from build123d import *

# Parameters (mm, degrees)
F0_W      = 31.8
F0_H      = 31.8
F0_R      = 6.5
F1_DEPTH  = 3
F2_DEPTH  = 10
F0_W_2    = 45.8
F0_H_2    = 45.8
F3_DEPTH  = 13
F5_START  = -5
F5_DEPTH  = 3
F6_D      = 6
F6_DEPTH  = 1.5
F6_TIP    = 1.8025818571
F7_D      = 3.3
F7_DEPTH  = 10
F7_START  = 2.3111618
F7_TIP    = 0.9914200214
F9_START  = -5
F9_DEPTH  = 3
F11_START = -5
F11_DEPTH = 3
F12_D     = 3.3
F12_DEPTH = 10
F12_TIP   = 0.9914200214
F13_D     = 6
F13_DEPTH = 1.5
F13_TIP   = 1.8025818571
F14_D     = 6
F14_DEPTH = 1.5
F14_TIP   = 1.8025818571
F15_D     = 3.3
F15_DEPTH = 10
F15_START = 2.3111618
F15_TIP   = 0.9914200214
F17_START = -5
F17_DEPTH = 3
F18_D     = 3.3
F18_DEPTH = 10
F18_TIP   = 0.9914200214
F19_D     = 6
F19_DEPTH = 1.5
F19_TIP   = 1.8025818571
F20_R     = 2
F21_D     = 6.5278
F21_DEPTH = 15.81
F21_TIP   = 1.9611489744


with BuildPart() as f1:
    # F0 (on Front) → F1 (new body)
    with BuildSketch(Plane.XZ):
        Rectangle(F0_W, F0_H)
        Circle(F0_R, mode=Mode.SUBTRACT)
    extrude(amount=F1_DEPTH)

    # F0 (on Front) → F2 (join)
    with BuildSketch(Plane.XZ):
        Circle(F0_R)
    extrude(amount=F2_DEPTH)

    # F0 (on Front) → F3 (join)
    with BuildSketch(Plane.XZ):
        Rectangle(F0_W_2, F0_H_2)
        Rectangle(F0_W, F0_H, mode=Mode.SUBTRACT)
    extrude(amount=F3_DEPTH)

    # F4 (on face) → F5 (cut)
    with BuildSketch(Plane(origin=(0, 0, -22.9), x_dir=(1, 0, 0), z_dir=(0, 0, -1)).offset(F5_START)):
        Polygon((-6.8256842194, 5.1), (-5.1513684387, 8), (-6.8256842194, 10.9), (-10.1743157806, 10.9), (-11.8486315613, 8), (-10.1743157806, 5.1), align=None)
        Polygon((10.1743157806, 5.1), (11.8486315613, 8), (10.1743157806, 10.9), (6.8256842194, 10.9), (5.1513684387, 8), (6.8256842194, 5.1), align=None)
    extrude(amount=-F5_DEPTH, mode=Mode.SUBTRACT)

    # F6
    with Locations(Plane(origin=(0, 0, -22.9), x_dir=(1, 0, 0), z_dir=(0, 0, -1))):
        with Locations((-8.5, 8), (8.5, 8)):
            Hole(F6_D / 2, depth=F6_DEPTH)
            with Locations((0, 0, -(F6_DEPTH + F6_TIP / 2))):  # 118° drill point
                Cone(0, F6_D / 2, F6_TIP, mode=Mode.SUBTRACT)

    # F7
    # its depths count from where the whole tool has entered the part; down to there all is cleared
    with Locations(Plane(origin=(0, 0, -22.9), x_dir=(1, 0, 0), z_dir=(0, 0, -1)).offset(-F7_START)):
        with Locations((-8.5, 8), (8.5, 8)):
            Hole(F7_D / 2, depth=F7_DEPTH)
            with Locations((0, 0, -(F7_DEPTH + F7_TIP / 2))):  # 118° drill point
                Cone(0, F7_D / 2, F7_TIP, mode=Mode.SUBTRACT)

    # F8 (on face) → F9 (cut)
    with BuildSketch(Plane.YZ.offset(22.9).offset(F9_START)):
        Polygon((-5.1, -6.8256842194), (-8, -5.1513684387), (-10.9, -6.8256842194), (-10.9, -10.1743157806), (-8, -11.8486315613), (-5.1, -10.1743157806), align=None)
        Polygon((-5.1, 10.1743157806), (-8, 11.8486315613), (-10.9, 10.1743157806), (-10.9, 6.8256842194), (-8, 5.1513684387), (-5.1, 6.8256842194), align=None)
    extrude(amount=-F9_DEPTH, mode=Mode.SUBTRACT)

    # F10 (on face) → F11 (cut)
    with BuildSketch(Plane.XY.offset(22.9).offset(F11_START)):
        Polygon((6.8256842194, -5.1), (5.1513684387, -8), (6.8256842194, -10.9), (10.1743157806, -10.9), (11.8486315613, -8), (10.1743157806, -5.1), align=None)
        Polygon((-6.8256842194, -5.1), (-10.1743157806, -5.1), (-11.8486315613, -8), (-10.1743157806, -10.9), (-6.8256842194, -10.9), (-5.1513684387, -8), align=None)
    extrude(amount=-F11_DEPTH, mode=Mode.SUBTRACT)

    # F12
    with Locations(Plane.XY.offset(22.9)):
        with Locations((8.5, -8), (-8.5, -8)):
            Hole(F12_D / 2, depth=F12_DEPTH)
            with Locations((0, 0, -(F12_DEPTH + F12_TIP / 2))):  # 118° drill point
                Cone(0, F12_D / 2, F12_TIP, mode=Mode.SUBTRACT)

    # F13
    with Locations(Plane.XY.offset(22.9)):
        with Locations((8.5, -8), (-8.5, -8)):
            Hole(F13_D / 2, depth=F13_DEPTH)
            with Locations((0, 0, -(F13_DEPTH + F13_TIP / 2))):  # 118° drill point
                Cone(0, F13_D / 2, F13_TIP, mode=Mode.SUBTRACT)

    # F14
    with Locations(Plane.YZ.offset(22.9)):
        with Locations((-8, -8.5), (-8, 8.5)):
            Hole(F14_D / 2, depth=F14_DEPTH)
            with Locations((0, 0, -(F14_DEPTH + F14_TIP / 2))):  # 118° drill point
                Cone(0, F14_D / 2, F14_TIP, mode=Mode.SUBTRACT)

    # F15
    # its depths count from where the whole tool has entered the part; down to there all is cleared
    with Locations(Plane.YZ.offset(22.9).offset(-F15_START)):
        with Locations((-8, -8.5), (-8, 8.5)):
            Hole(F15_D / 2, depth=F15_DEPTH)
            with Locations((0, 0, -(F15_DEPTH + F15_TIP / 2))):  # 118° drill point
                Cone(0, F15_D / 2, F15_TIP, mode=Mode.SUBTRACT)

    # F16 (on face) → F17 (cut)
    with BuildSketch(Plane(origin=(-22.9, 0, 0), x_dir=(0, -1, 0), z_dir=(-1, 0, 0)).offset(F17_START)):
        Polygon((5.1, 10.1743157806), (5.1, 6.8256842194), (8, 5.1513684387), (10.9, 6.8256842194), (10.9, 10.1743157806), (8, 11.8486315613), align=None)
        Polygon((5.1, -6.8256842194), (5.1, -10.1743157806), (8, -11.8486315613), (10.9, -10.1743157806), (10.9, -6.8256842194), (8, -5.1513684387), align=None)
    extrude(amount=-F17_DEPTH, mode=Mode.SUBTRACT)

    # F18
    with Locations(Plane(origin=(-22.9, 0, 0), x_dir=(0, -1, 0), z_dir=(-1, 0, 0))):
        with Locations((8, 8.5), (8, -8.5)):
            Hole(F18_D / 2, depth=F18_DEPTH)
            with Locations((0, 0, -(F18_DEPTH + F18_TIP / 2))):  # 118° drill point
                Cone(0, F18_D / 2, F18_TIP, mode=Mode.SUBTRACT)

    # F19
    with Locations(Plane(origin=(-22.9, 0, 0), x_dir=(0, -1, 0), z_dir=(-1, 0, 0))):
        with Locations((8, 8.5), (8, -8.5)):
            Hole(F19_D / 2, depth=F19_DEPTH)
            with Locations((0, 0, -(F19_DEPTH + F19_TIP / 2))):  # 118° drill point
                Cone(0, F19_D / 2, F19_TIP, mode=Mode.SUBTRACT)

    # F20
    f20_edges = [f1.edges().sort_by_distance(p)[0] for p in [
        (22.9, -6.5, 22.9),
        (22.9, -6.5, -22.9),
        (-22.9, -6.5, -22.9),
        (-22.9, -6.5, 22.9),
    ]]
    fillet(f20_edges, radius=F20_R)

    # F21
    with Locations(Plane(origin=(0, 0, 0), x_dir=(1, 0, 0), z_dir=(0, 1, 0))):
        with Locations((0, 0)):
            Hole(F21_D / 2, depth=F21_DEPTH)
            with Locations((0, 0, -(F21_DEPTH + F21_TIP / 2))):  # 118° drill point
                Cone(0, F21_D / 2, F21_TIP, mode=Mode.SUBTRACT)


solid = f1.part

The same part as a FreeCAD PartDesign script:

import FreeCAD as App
import Part
import Sketcher

V = App.Vector
Q = App.Units.Quantity


def edges_at(feature, points):
    """Names of the edges that pass closest to the given points."""
    edges = feature.Shape.Edges
    near = lambda p: min(range(len(edges)), key=lambda i: edges[i].distToShape(Part.Vertex(*p))[0])
    return sorted({f"Edge{near(p) + 1}" for p in points})

doc = App.newDocument("Part")
params = doc.addObject("Spreadsheet::Sheet", "Params")
for row, (alias, value) in enumerate([
    ("sketch1_diameter", "13 mm"),
    ("sketch1_width", "31.8 mm"),
    ("pad1_length", "3 mm"),
    ("sketch2_diameter", "13 mm"),
    ("pad2_length", "10 mm"),
    ("sketch3_width", "45.8 mm"),
    ("sketch3_width2", "31.8 mm"),
    ("pad3_length", "13 mm"),
    ("pocket1_length", "3 mm"),
    ("sketch5_diameter", "6 mm"),
    ("hole_diameter", "6 mm"),
    ("hole_depth", "1.5 mm"),
    ("sketch6_diameter", "3.3 mm"),
    ("hole2_diameter", "3.3 mm"),
    ("hole2_depth", "10 mm"),
    ("pocket2_length", "3 mm"),
    ("pocket3_length", "3 mm"),
    ("sketch9_diameter", "3.3 mm"),
    ("hole3_diameter", "3.3 mm"),
    ("hole3_depth", "10 mm"),
    ("sketch10_diameter", "6 mm"),
    ("hole4_diameter", "6 mm"),
    ("hole4_depth", "1.5 mm"),
    ("sketch11_diameter", "6 mm"),
    ("hole5_diameter", "6 mm"),
    ("hole5_depth", "1.5 mm"),
    ("sketch12_diameter", "3.3 mm"),
    ("hole6_diameter", "3.3 mm"),
    ("hole6_depth", "10 mm"),
    ("pocket4_length", "3 mm"),
    ("sketch14_diameter", "3.3 mm"),
    ("hole7_diameter", "3.3 mm"),
    ("hole7_depth", "10 mm"),
    ("sketch15_diameter", "6 mm"),
    ("hole8_diameter", "6 mm"),
    ("hole8_depth", "1.5 mm"),
    ("fillet_radius", "2 mm"),
    ("hole9_diameter", "6.5278 mm"),
    ("hole9_depth", "15.81 mm"),
], start=1):
    params.set(f"A{row}", alias)
    params.set(f"B{row}", "=" + value)
    params.setAlias(f"B{row}", alias)

body = doc.addObject("PartDesign::Body", "Body")

sketch1 = body.newObject("Sketcher::SketchObject", "Sketch")
sketch1.AttachmentSupport = (doc.getObject("XZ_Plane"), [""])
sketch1.MapMode = "FlatFace"
sketch1.addGeometry([
    Part.LineSegment(V(-15.9, 15.9, 0), V(-15.9, -15.9, 0)),
    Part.LineSegment(V(-15.9, -15.9, 0), V(15.9, -15.9, 0)),
    Part.LineSegment(V(15.9, -15.9, 0), V(15.9, 15.9, 0)),
    Part.LineSegment(V(15.9, 15.9, 0), V(-15.9, 15.9, 0)),
    Part.Circle(V(0, 0, 0), V(0, 0, 1), 6.5),
], False)
sketch1.addConstraint([
    Sketcher.Constraint("Coincident", 0, 2, 1, 1),
    Sketcher.Constraint("Coincident", 1, 2, 2, 1),
    Sketcher.Constraint("Coincident", 2, 2, 3, 1),
    Sketcher.Constraint("Coincident", 3, 2, 0, 1),
    Sketcher.Constraint("Vertical", 0),
    Sketcher.Constraint("Horizontal", 1),
    Sketcher.Constraint("Vertical", 2),
    Sketcher.Constraint("Horizontal", 3),
    Sketcher.Constraint("Coincident", 4, 3, -1, 1),
    Sketcher.Constraint("Symmetric", 0, 2, 2, 2, -1, 1),
    Sketcher.Constraint("Equal", 3, 0),
    Sketcher.Constraint("Diameter", 4, 13.0),
    Sketcher.Constraint("DistanceX", 1, 1, 1, 2, 31.8),
])
sketch1.setExpression("Constraints[11]", "Params.sketch1_diameter")
sketch1.setExpression("Constraints[12]", "Params.sketch1_width")
pad1 = body.newObject("PartDesign::Pad", "Pad")
pad1.Profile = sketch1
pad1.setExpression("Length", "Params.pad1_length")

sketch2 = body.newObject("Sketcher::SketchObject", "Sketch001")
sketch2.AttachmentSupport = (doc.getObject("XZ_Plane"), [""])
sketch2.MapMode = "FlatFace"
sketch2.addGeometry(Part.Circle(V(0, 0, 0), V(0, 0, 1), 6.5), False)
sketch2.addConstraint([
    Sketcher.Constraint("Coincident", 0, 3, -1, 1),
    Sketcher.Constraint("Diameter", 0, 13.0),
])
sketch2.setExpression("Constraints[1]", "Params.sketch2_diameter")
pad2 = body.newObject("PartDesign::Pad", "Pad001")
pad2.Profile = sketch2
pad2.setExpression("Length", "Params.pad2_length")

sketch3 = body.newObject("Sketcher::SketchObject", "Sketch002")
sketch3.AttachmentSupport = (doc.getObject("XZ_Plane"), [""])
sketch3.MapMode = "FlatFace"
sketch3.addGeometry([
    Part.LineSegment(V(-22.9, 22.9, 0), V(-22.9, -22.9, 0)),
    Part.LineSegment(V(-22.9, -22.9, 0), V(22.9, -22.9, 0)),
    Part.LineSegment(V(22.9, -22.9, 0), V(22.9, 22.9, 0)),
    Part.LineSegment(V(22.9, 22.9, 0), V(-22.9, 22.9, 0)),
    Part.LineSegment(V(15.9, -15.9, 0), V(-15.9, -15.9, 0)),
    Part.LineSegment(V(-15.9, -15.9, 0), V(-15.9, 15.9, 0)),
    Part.LineSegment(V(-15.9, 15.9, 0), V(15.9, 15.9, 0)),
    Part.LineSegment(V(15.9, 15.9, 0), V(15.9, -15.9, 0)),
], False)
sketch3.addConstraint([
    Sketcher.Constraint("Coincident", 0, 2, 1, 1),
    Sketcher.Constraint("Coincident", 1, 2, 2, 1),
    Sketcher.Constraint("Coincident", 2, 2, 3, 1),
    Sketcher.Constraint("Coincident", 3, 2, 0, 1),
    Sketcher.Constraint("Coincident", 4, 2, 5, 1),
    Sketcher.Constraint("Coincident", 5, 2, 6, 1),
    Sketcher.Constraint("Coincident", 6, 2, 7, 1),
    Sketcher.Constraint("Coincident", 7, 2, 4, 1),
    Sketcher.Constraint("Vertical", 0),
    Sketcher.Constraint("Horizontal", 1),
    Sketcher.Constraint("Vertical", 2),
    Sketcher.Constraint("Horizontal", 3),
    Sketcher.Constraint("Horizontal", 4),
    Sketcher.Constraint("Vertical", 5),
    Sketcher.Constraint("Horizontal", 6),
    Sketcher.Constraint("Vertical", 7),
    Sketcher.Constraint("Symmetric", 0, 2, 2, 2, -1, 1),
    Sketcher.Constraint("Symmetric", 4, 2, 6, 2, -1, 1),
    Sketcher.Constraint("Equal", 3, 0),
    Sketcher.Constraint("Equal", 6, 5),
    Sketcher.Constraint("DistanceX", 1, 1, 1, 2, 45.8),
    Sketcher.Constraint("DistanceX", 4, 2, 4, 1, 31.8),
])
sketch3.setExpression("Constraints[20]", "Params.sketch3_width")
sketch3.setExpression("Constraints[21]", "Params.sketch3_width2")
pad3 = body.newObject("PartDesign::Pad", "Pad002")
pad3.Profile = sketch3
pad3.setExpression("Length", "Params.pad3_length")

sketch4 = body.newObject("Sketcher::SketchObject", "Sketch003")
sketch4.AttachmentSupport = (doc.getObject("XY_Plane"), [""])
sketch4.MapMode = "FlatFace"
sketch4.AttachmentOffset = App.Placement(V(0, 0, -17.9), App.Rotation())
sketch4.addGeometry([
    Part.LineSegment(V(-6.825684, -5.1, 0), V(-5.151368, -8, 0)),
    Part.LineSegment(V(-5.151368, -8, 0), V(-6.825684, -10.9, 0)),
    Part.LineSegment(V(-6.825684, -10.9, 0), V(-10.174316, -10.9, 0)),
    Part.LineSegment(V(-10.174316, -10.9, 0), V(-11.848632, -8, 0)),
    Part.LineSegment(V(-11.848632, -8, 0), V(-10.174316, -5.1, 0)),
    Part.LineSegment(V(-10.174316, -5.1, 0), V(-6.825684, -5.1, 0)),
    Part.LineSegment(V(10.174316, -5.1, 0), V(11.848632, -8, 0)),
    Part.LineSegment(V(11.848632, -8, 0), V(10.174316, -10.9, 0)),
    Part.LineSegment(V(10.174316, -10.9, 0), V(6.825684, -10.9, 0)),
    Part.LineSegment(V(6.825684, -10.9, 0), V(5.151368, -8, 0)),
    Part.LineSegment(V(5.151368, -8, 0), V(6.825684, -5.1, 0)),
    Part.LineSegment(V(6.825684, -5.1, 0), V(10.174316, -5.1, 0)),
], False)
sketch4.addConstraint([
    Sketcher.Constraint("Coincident", 0, 2, 1, 1),
    Sketcher.Constraint("Coincident", 1, 2, 2, 1),
    Sketcher.Constraint("Coincident", 2, 2, 3, 1),
    Sketcher.Constraint("Coincident", 3, 2, 4, 1),
    Sketcher.Constraint("Coincident", 4, 2, 5, 1),
    Sketcher.Constraint("Coincident", 5, 2, 0, 1),
    Sketcher.Constraint("Coincident", 6, 2, 7, 1),
    Sketcher.Constraint("Coincident", 7, 2, 8, 1),
    Sketcher.Constraint("Coincident", 8, 2, 9, 1),
    Sketcher.Constraint("Coincident", 9, 2, 10, 1),
    Sketcher.Constraint("Coincident", 10, 2, 11, 1),
    Sketcher.Constraint("Coincident", 11, 2, 6, 1),
    Sketcher.Constraint("Horizontal", 2),
    Sketcher.Constraint("Horizontal", 5),
    Sketcher.Constraint("Horizontal", 8),
    Sketcher.Constraint("Horizontal", 11),
    Sketcher.Constraint("Symmetric", 3, 2, 6, 2, -2),
    Sketcher.Constraint("Symmetric", 2, 2, 7, 2, -2),
    Sketcher.Constraint("Symmetric", 0, 2, 9, 2, -2),
    Sketcher.Constraint("Symmetric", 5, 2, 10, 2, -2),
    Sketcher.Constraint("Parallel", 0, 3),
    Sketcher.Constraint("Parallel", 1, 4),
    Sketcher.Constraint("Parallel", 3, 6),
    Sketcher.Constraint("Parallel", 4, 7),
    Sketcher.Constraint("Parallel", 6, 9),
    Sketcher.Constraint("Horizontal", 0, 2, 3, 2),
    Sketcher.Constraint("Vertical", 2, 2, 4, 2),
    Sketcher.Constraint("Angle", 0, Q("-60 deg")),
    Sketcher.Constraint("DistanceY", 0, 2, -1, 1, 8.0),
    Sketcher.Constraint("DistanceX", 0, 2, 6, 2, 17.0),
    Sketcher.Constraint("DistanceY", 1, 2, -1, 1, 10.9),
    Sketcher.Constraint("DistanceX", 2, 2, 2, 1, 3.348632),
])
pocket1 = body.newObject("PartDesign::Pocket", "Pocket")
pocket1.Profile = sketch4
pocket1.setExpression("Length", "Params.pocket1_length")
pocket1.Reversed = True

sketch5 = body.newObject("Sketcher::SketchObject", "Sketch004")
sketch5.AttachmentSupport = (doc.getObject("XY_Plane"), [""])
sketch5.MapMode = "FlatFace"
sketch5.AttachmentOffset = App.Placement(V(0, 0, -22.9), App.Rotation())
sketch5.addGeometry([
    Part.Circle(V(-8.5, -8, 0), V(0, 0, 1), 3),
    Part.Circle(V(8.5, -8, 0), V(0, 0, 1), 3),
], False)
sketch5.addConstraint([
    Sketcher.Constraint("Equal", 0, 1),
    Sketcher.Constraint("Symmetric", 0, 3, 1, 3, -2),
    Sketcher.Constraint("Diameter", 0, 6.0),
    Sketcher.Constraint("DistanceY", 0, 3, -1, 1, 8.0),
    Sketcher.Constraint("DistanceX", 0, 3, 1, 3, 17.0),
])
sketch5.setExpression("Constraints[2]", "Params.sketch5_diameter")
doc.recompute()
hole = body.newObject("PartDesign::Hole", "Hole")
hole.Profile = sketch5
hole.ThreadType = "None"
hole.setExpression("Diameter", "Params.hole_diameter")
hole.DepthType = "Dimension"
hole.setExpression("Depth", "Params.hole_depth")
hole.DrillPoint = "Angled"
hole.DrillPointAngle = 118
hole.Reversed = True

sketch6 = body.newObject("Sketcher::SketchObject", "Sketch005")
sketch6.AttachmentSupport = (doc.getObject("XY_Plane"), [""])
sketch6.MapMode = "FlatFace"
sketch6.AttachmentOffset = App.Placement(V(0, 0, -20.588838), App.Rotation())
sketch6.addGeometry([
    Part.Circle(V(-8.5, -8, 0), V(0, 0, 1), 1.65),
    Part.Circle(V(8.5, -8, 0), V(0, 0, 1), 1.65),
], False)
sketch6.addConstraint([
    Sketcher.Constraint("Equal", 0, 1),
    Sketcher.Constraint("Symmetric", 0, 3, 1, 3, -2),
    Sketcher.Constraint("Diameter", 0, 3.3),
    Sketcher.Constraint("DistanceY", 0, 3, -1, 1, 8.0),
    Sketcher.Constraint("DistanceX", 0, 3, 1, 3, 17.0),
])
sketch6.setExpression("Constraints[2]", "Params.sketch6_diameter")
doc.recompute()
hole2 = body.newObject("PartDesign::Hole", "Hole001")
hole2.Profile = sketch6
hole2.ThreadType = "None"
hole2.setExpression("Diameter", "Params.hole2_diameter")
hole2.DepthType = "Dimension"
hole2.setExpression("Depth", "Params.hole2_depth")
hole2.DrillPoint = "Angled"
hole2.DrillPointAngle = 118
hole2.Reversed = True

sketch7 = body.newObject("Sketcher::SketchObject", "Sketch006")
sketch7.AttachmentSupport = (doc.getObject("YZ_Plane"), [""])
sketch7.MapMode = "FlatFace"
sketch7.AttachmentOffset = App.Placement(V(0, 0, 17.9), App.Rotation())
sketch7.addGeometry([
    Part.LineSegment(V(-5.1, -6.825684, 0), V(-8, -5.151368, 0)),
    Part.LineSegment(V(-8, -5.151368, 0), V(-10.9, -6.825684, 0)),
    Part.LineSegment(V(-10.9, -6.825684, 0), V(-10.9, -10.174316, 0)),
    Part.LineSegment(V(-10.9, -10.174316, 0), V(-8, -11.848632, 0)),
    Part.LineSegment(V(-8, -11.848632, 0), V(-5.1, -10.174316, 0)),
    Part.LineSegment(V(-5.1, -10.174316, 0), V(-5.1, -6.825684, 0)),
    Part.LineSegment(V(-5.1, 10.174316, 0), V(-8, 11.848632, 0)),
    Part.LineSegment(V(-8, 11.848632, 0), V(-10.9, 10.174316, 0)),
    Part.LineSegment(V(-10.9, 10.174316, 0), V(-10.9, 6.825684, 0)),
    Part.LineSegment(V(-10.9, 6.825684, 0), V(-8, 5.151368, 0)),
    Part.LineSegment(V(-8, 5.151368, 0), V(-5.1, 6.825684, 0)),
    Part.LineSegment(V(-5.1, 6.825684, 0), V(-5.1, 10.174316, 0)),
], False)
sketch7.addConstraint([
    Sketcher.Constraint("Coincident", 0, 2, 1, 1),
    Sketcher.Constraint("Coincident", 1, 2, 2, 1),
    Sketcher.Constraint("Coincident", 2, 2, 3, 1),
    Sketcher.Constraint("Coincident", 3, 2, 4, 1),
    Sketcher.Constraint("Coincident", 4, 2, 5, 1),
    Sketcher.Constraint("Coincident", 5, 2, 0, 1),
    Sketcher.Constraint("Coincident", 6, 2, 7, 1),
    Sketcher.Constraint("Coincident", 7, 2, 8, 1),
    Sketcher.Constraint("Coincident", 8, 2, 9, 1),
    Sketcher.Constraint("Coincident", 9, 2, 10, 1),
    Sketcher.Constraint("Coincident", 10, 2, 11, 1),
    Sketcher.Constraint("Coincident", 11, 2, 6, 1),
    Sketcher.Constraint("Vertical", 2),
    Sketcher.Constraint("Vertical", 5),
    Sketcher.Constraint("Vertical", 8),
    Sketcher.Constraint("Vertical", 11),
    Sketcher.Constraint("Symmetric", 3, 2, 6, 2, -1),
    Sketcher.Constraint("Symmetric", 2, 2, 7, 2, -1),
    Sketcher.Constraint("Symmetric", 0, 2, 9, 2, -1),
    Sketcher.Constraint("Symmetric", 5, 2, 10, 2, -1),
    Sketcher.Constraint("Parallel", 0, 3),
    Sketcher.Constraint("Parallel", 1, 4),
    Sketcher.Constraint("Parallel", 3, 6),
    Sketcher.Constraint("Parallel", 4, 7),
    Sketcher.Constraint("Parallel", 6, 9),
    Sketcher.Constraint("Horizontal", 2, 2, 4, 2),
    Sketcher.Constraint("Horizontal", 1, 2, 5, 2),
    Sketcher.Constraint("Angle", 0, Q("150 deg")),
    Sketcher.Constraint("DistanceX", 0, 2, -1, 1, 8.0),
    Sketcher.Constraint("DistanceY", 0, 2, 6, 2, 17.0),
    Sketcher.Constraint("DistanceX", 1, 2, -1, 1, 10.9),
    Sketcher.Constraint("DistanceY", 2, 2, 2, 1, 3.348632),
])
pocket2 = body.newObject("PartDesign::Pocket", "Pocket001")
pocket2.Profile = sketch7
pocket2.setExpression("Length", "Params.pocket2_length")

sketch8 = body.newObject("Sketcher::SketchObject", "Sketch007")
sketch8.AttachmentSupport = (doc.getObject("XY_Plane"), [""])
sketch8.MapMode = "FlatFace"
sketch8.AttachmentOffset = App.Placement(V(0, 0, 17.9), App.Rotation())
sketch8.addGeometry([
    Part.LineSegment(V(6.825684, -5.1, 0), V(5.151368, -8, 0)),
    Part.LineSegment(V(5.151368, -8, 0), V(6.825684, -10.9, 0)),
    Part.LineSegment(V(6.825684, -10.9, 0), V(10.174316, -10.9, 0)),
    Part.LineSegment(V(10.174316, -10.9, 0), V(11.848632, -8, 0)),
    Part.LineSegment(V(11.848632, -8, 0), V(10.174316, -5.1, 0)),
    Part.LineSegment(V(10.174316, -5.1, 0), V(6.825684, -5.1, 0)),
    Part.LineSegment(V(-6.825684, -5.1, 0), V(-10.174316, -5.1, 0)),
    Part.LineSegment(V(-10.174316, -5.1, 0), V(-11.848632, -8, 0)),
    Part.LineSegment(V(-11.848632, -8, 0), V(-10.174316, -10.9, 0)),
    Part.LineSegment(V(-10.174316, -10.9, 0), V(-6.825684, -10.9, 0)),
    Part.LineSegment(V(-6.825684, -10.9, 0), V(-5.151368, -8, 0)),
    Part.LineSegment(V(-5.151368, -8, 0), V(-6.825684, -5.1, 0)),
], False)
sketch8.addConstraint([
    Sketcher.Constraint("Coincident", 0, 2, 1, 1),
    Sketcher.Constraint("Coincident", 1, 2, 2, 1),
    Sketcher.Constraint("Coincident", 2, 2, 3, 1),
    Sketcher.Constraint("Coincident", 3, 2, 4, 1),
    Sketcher.Constraint("Coincident", 4, 2, 5, 1),
    Sketcher.Constraint("Coincident", 5, 2, 0, 1),
    Sketcher.Constraint("Coincident", 6, 2, 7, 1),
    Sketcher.Constraint("Coincident", 7, 2, 8, 1),
    Sketcher.Constraint("Coincident", 8, 2, 9, 1),
    Sketcher.Constraint("Coincident", 9, 2, 10, 1),
    Sketcher.Constraint("Coincident", 10, 2, 11, 1),
    Sketcher.Constraint("Coincident", 11, 2, 6, 1),
    Sketcher.Constraint("Horizontal", 2),
    Sketcher.Constraint("Horizontal", 5),
    Sketcher.Constraint("Horizontal", 6),
    Sketcher.Constraint("Horizontal", 9),
    Sketcher.Constraint("Symmetric", 4, 2, 6, 2, -2),
    Sketcher.Constraint("Symmetric", 3, 2, 7, 2, -2),
    Sketcher.Constraint("Symmetric", 2, 2, 8, 2, -2),
    Sketcher.Constraint("Symmetric", 0, 2, 10, 2, -2),
    Sketcher.Constraint("Parallel", 0, 3),
    Sketcher.Constraint("Parallel", 1, 4),
    Sketcher.Constraint("Parallel", 3, 7),
    Sketcher.Constraint("Parallel", 7, 10),
    Sketcher.Constraint("Parallel", 8, 11),
    Sketcher.Constraint("Horizontal", 0, 2, 3, 2),
    Sketcher.Constraint("Vertical", 2, 2, 4, 2),
    Sketcher.Constraint("Angle", 0, Q("-120 deg")),
    Sketcher.Constraint("DistanceY", 0, 2, -1, 1, 8.0),
    Sketcher.Constraint("DistanceX", 6, 2, 5, 2, 17.0),
    Sketcher.Constraint("DistanceY", 1, 2, -1, 1, 10.9),
    Sketcher.Constraint("DistanceX", 2, 1, 2, 2, 3.348632),
])
pocket3 = body.newObject("PartDesign::Pocket", "Pocket002")
pocket3.Profile = sketch8
pocket3.setExpression("Length", "Params.pocket3_length")

sketch9 = body.newObject("Sketcher::SketchObject", "Sketch008")
sketch9.AttachmentSupport = (doc.getObject("XY_Plane"), [""])
sketch9.MapMode = "FlatFace"
sketch9.AttachmentOffset = App.Placement(V(0, 0, 22.9), App.Rotation())
sketch9.addGeometry([
    Part.Circle(V(8.5, -8, 0), V(0, 0, 1), 1.65),
    Part.Circle(V(-8.5, -8, 0), V(0, 0, 1), 1.65),
], False)
sketch9.addConstraint([
    Sketcher.Constraint("Equal", 0, 1),
    Sketcher.Constraint("Symmetric", 0, 3, 1, 3, -2),
    Sketcher.Constraint("Diameter", 0, 3.3),
    Sketcher.Constraint("DistanceY", 0, 3, -1, 1, 8.0),
    Sketcher.Constraint("DistanceX", 1, 3, 0, 3, 17.0),
])
sketch9.setExpression("Constraints[2]", "Params.sketch9_diameter")
doc.recompute()
hole3 = body.newObject("PartDesign::Hole", "Hole002")
hole3.Profile = sketch9
hole3.ThreadType = "None"
hole3.setExpression("Diameter", "Params.hole3_diameter")
hole3.DepthType = "Dimension"
hole3.setExpression("Depth", "Params.hole3_depth")
hole3.DrillPoint = "Angled"
hole3.DrillPointAngle = 118

sketch10 = body.newObject("Sketcher::SketchObject", "Sketch009")
sketch10.AttachmentSupport = (doc.getObject("XY_Plane"), [""])
sketch10.MapMode = "FlatFace"
sketch10.AttachmentOffset = App.Placement(V(0, 0, 22.9), App.Rotation())
sketch10.addGeometry([
    Part.Circle(V(8.5, -8, 0), V(0, 0, 1), 3),
    Part.Circle(V(-8.5, -8, 0), V(0, 0, 1), 3),
], False)
sketch10.addConstraint([
    Sketcher.Constraint("Equal", 0, 1),
    Sketcher.Constraint("Symmetric", 0, 3, 1, 3, -2),
    Sketcher.Constraint("Diameter", 0, 6.0),
    Sketcher.Constraint("DistanceY", 0, 3, -1, 1, 8.0),
    Sketcher.Constraint("DistanceX", 1, 3, 0, 3, 17.0),
])
sketch10.setExpression("Constraints[2]", "Params.sketch10_diameter")
doc.recompute()
hole4 = body.newObject("PartDesign::Hole", "Hole003")
hole4.Profile = sketch10
hole4.ThreadType = "None"
hole4.setExpression("Diameter", "Params.hole4_diameter")
hole4.DepthType = "Dimension"
hole4.setExpression("Depth", "Params.hole4_depth")
hole4.DrillPoint = "Angled"
hole4.DrillPointAngle = 118

sketch11 = body.newObject("Sketcher::SketchObject", "Sketch010")
sketch11.AttachmentSupport = (doc.getObject("YZ_Plane"), [""])
sketch11.MapMode = "FlatFace"
sketch11.AttachmentOffset = App.Placement(V(0, 0, 22.9), App.Rotation())
sketch11.addGeometry([
    Part.Circle(V(-8, -8.5, 0), V(0, 0, 1), 3),
    Part.Circle(V(-8, 8.5, 0), V(0, 0, 1), 3),
], False)
sketch11.addConstraint([
    Sketcher.Constraint("Equal", 0, 1),
    Sketcher.Constraint("Symmetric", 0, 3, 1, 3, -1),
    Sketcher.Constraint("Diameter", 0, 6.0),
    Sketcher.Constraint("DistanceX", 0, 3, -1, 1, 8.0),
    Sketcher.Constraint("DistanceY", 0, 3, 1, 3, 17.0),
])
sketch11.setExpression("Constraints[2]", "Params.sketch11_diameter")
doc.recompute()
hole5 = body.newObject("PartDesign::Hole", "Hole004")
hole5.Profile = sketch11
hole5.ThreadType = "None"
hole5.setExpression("Diameter", "Params.hole5_diameter")
hole5.DepthType = "Dimension"
hole5.setExpression("Depth", "Params.hole5_depth")
hole5.DrillPoint = "Angled"
hole5.DrillPointAngle = 118

sketch12 = body.newObject("Sketcher::SketchObject", "Sketch011")
sketch12.AttachmentSupport = (doc.getObject("YZ_Plane"), [""])
sketch12.MapMode = "FlatFace"
sketch12.AttachmentOffset = App.Placement(V(0, 0, 20.588838), App.Rotation())
sketch12.addGeometry([
    Part.Circle(V(-8, -8.5, 0), V(0, 0, 1), 1.65),
    Part.Circle(V(-8, 8.5, 0), V(0, 0, 1), 1.65),
], False)
sketch12.addConstraint([
    Sketcher.Constraint("Equal", 0, 1),
    Sketcher.Constraint("Symmetric", 0, 3, 1, 3, -1),
    Sketcher.Constraint("Diameter", 0, 3.3),
    Sketcher.Constraint("DistanceX", 0, 3, -1, 1, 8.0),
    Sketcher.Constraint("DistanceY", 0, 3, 1, 3, 17.0),
])
sketch12.setExpression("Constraints[2]", "Params.sketch12_diameter")
doc.recompute()
hole6 = body.newObject("PartDesign::Hole", "Hole005")
hole6.Profile = sketch12
hole6.ThreadType = "None"
hole6.setExpression("Diameter", "Params.hole6_diameter")
hole6.DepthType = "Dimension"
hole6.setExpression("Depth", "Params.hole6_depth")
hole6.DrillPoint = "Angled"
hole6.DrillPointAngle = 118

sketch13 = body.newObject("Sketcher::SketchObject", "Sketch012")
sketch13.AttachmentSupport = (doc.getObject("YZ_Plane"), [""])
sketch13.MapMode = "FlatFace"
sketch13.AttachmentOffset = App.Placement(V(0, 0, -17.9), App.Rotation())
sketch13.addGeometry([
    Part.LineSegment(V(-5.1, 10.174316, 0), V(-5.1, 6.825684, 0)),
    Part.LineSegment(V(-5.1, 6.825684, 0), V(-8, 5.151368, 0)),
    Part.LineSegment(V(-8, 5.151368, 0), V(-10.9, 6.825684, 0)),
    Part.LineSegment(V(-10.9, 6.825684, 0), V(-10.9, 10.174316, 0)),
    Part.LineSegment(V(-10.9, 10.174316, 0), V(-8, 11.848632, 0)),
    Part.LineSegment(V(-8, 11.848632, 0), V(-5.1, 10.174316, 0)),
    Part.LineSegment(V(-5.1, -6.825684, 0), V(-5.1, -10.174316, 0)),
    Part.LineSegment(V(-5.1, -10.174316, 0), V(-8, -11.848632, 0)),
    Part.LineSegment(V(-8, -11.848632, 0), V(-10.9, -10.174316, 0)),
    Part.LineSegment(V(-10.9, -10.174316, 0), V(-10.9, -6.825684, 0)),
    Part.LineSegment(V(-10.9, -6.825684, 0), V(-8, -5.151368, 0)),
    Part.LineSegment(V(-8, -5.151368, 0), V(-5.1, -6.825684, 0)),
], False)
sketch13.addConstraint([
    Sketcher.Constraint("Coincident", 0, 2, 1, 1),
    Sketcher.Constraint("Coincident", 1, 2, 2, 1),
    Sketcher.Constraint("Coincident", 2, 2, 3, 1),
    Sketcher.Constraint("Coincident", 3, 2, 4, 1),
    Sketcher.Constraint("Coincident", 4, 2, 5, 1),
    Sketcher.Constraint("Coincident", 5, 2, 0, 1),
    Sketcher.Constraint("Coincident", 6, 2, 7, 1),
    Sketcher.Constraint("Coincident", 7, 2, 8, 1),
    Sketcher.Constraint("Coincident", 8, 2, 9, 1),
    Sketcher.Constraint("Coincident", 9, 2, 10, 1),
    Sketcher.Constraint("Coincident", 10, 2, 11, 1),
    Sketcher.Constraint("Coincident", 11, 2, 6, 1),
    Sketcher.Constraint("Vertical", 0),
    Sketcher.Constraint("Vertical", 3),
    Sketcher.Constraint("Vertical", 6),
    Sketcher.Constraint("Vertical", 9),
    Sketcher.Constraint("Symmetric", 5, 2, 6, 2, -1),
    Sketcher.Constraint("Symmetric", 4, 2, 7, 2, -1),
    Sketcher.Constraint("Symmetric", 3, 2, 8, 2, -1),
    Sketcher.Constraint("Symmetric", 1, 2, 10, 2, -1),
    Sketcher.Constraint("Parallel", 1, 4),
    Sketcher.Constraint("Parallel", 2, 5),
    Sketcher.Constraint("Parallel", 4, 7),
    Sketcher.Constraint("Parallel", 7, 10),
    Sketcher.Constraint("Parallel", 8, 11),
    Sketcher.Constraint("Horizontal", 0, 2, 2, 2),
    Sketcher.Constraint("Horizontal", 3, 2, 5, 2),
    Sketcher.Constraint("Angle", 1, Q("-150 deg")),
    Sketcher.Constraint("DistanceX", 1, 2, -1, 1, 8.0),
    Sketcher.Constraint("DistanceY", 6, 2, 0, 2, 17.0),
    Sketcher.Constraint("DistanceX", 0, 2, -1, 1, 5.1),
    Sketcher.Constraint("DistanceY", 0, 2, 0, 1, 3.348632),
])
pocket4 = body.newObject("PartDesign::Pocket", "Pocket003")
pocket4.Profile = sketch13
pocket4.setExpression("Length", "Params.pocket4_length")
pocket4.Reversed = True

sketch14 = body.newObject("Sketcher::SketchObject", "Sketch013")
sketch14.AttachmentSupport = (doc.getObject("YZ_Plane"), [""])
sketch14.MapMode = "FlatFace"
sketch14.AttachmentOffset = App.Placement(V(0, 0, -22.9), App.Rotation())
sketch14.addGeometry([
    Part.Circle(V(-8, 8.5, 0), V(0, 0, 1), 1.65),
    Part.Circle(V(-8, -8.5, 0), V(0, 0, 1), 1.65),
], False)
sketch14.addConstraint([
    Sketcher.Constraint("Equal", 0, 1),
    Sketcher.Constraint("Symmetric", 0, 3, 1, 3, -1),
    Sketcher.Constraint("Diameter", 0, 3.3),
    Sketcher.Constraint("DistanceX", 0, 3, -1, 1, 8.0),
    Sketcher.Constraint("DistanceY", 1, 3, 0, 3, 17.0),
])
sketch14.setExpression("Constraints[2]", "Params.sketch14_diameter")
doc.recompute()
hole7 = body.newObject("PartDesign::Hole", "Hole006")
hole7.Profile = sketch14
hole7.ThreadType = "None"
hole7.setExpression("Diameter", "Params.hole7_diameter")
hole7.DepthType = "Dimension"
hole7.setExpression("Depth", "Params.hole7_depth")
hole7.DrillPoint = "Angled"
hole7.DrillPointAngle = 118
hole7.Reversed = True

sketch15 = body.newObject("Sketcher::SketchObject", "Sketch014")
sketch15.AttachmentSupport = (doc.getObject("YZ_Plane"), [""])
sketch15.MapMode = "FlatFace"
sketch15.AttachmentOffset = App.Placement(V(0, 0, -22.9), App.Rotation())
sketch15.addGeometry([
    Part.Circle(V(-8, 8.5, 0), V(0, 0, 1), 3),
    Part.Circle(V(-8, -8.5, 0), V(0, 0, 1), 3),
], False)
sketch15.addConstraint([
    Sketcher.Constraint("Equal", 0, 1),
    Sketcher.Constraint("Symmetric", 0, 3, 1, 3, -1),
    Sketcher.Constraint("Diameter", 0, 6.0),
    Sketcher.Constraint("DistanceX", 0, 3, -1, 1, 8.0),
    Sketcher.Constraint("DistanceY", 1, 3, 0, 3, 17.0),
])
sketch15.setExpression("Constraints[2]", "Params.sketch15_diameter")
doc.recompute()
hole8 = body.newObject("PartDesign::Hole", "Hole007")
hole8.Profile = sketch15
hole8.ThreadType = "None"
hole8.setExpression("Diameter", "Params.hole8_diameter")
hole8.DepthType = "Dimension"
hole8.setExpression("Depth", "Params.hole8_depth")
hole8.DrillPoint = "Angled"
hole8.DrillPointAngle = 118
hole8.Reversed = True
doc.recompute()

fillet = body.newObject("PartDesign::Fillet", "Fillet")
fillet.Base = (hole8, edges_at(hole8, [
    (22.9, -6.5, 22.9),
    (22.9, -6.5, -22.9),
    (-22.9, -6.5, -22.9),
    (-22.9, -6.5, 22.9),
]))
fillet.setExpression("Radius", "Params.fillet_radius")

sketch16 = body.newObject("Sketcher::SketchObject", "Sketch015")
sketch16.AttachmentSupport = (doc.getObject("XZ_Plane"), [""])
sketch16.MapMode = "FlatFace"
sketch16.addGeometry(Part.Circle(V(0, 0, 0), V(0, 0, 1), 3.2639), False)
sketch16.addConstraint([
    Sketcher.Constraint("Coincident", 0, 3, -1, 1),
    Sketcher.Constraint("Diameter", 0, 6.5278),
])
doc.recompute()
hole9 = body.newObject("PartDesign::Hole", "Hole008")
hole9.Profile = sketch16
hole9.ThreadType = "None"
hole9.setExpression("Diameter", "Params.hole9_diameter")
hole9.DepthType = "Dimension"
hole9.setExpression("Depth", "Params.hole9_depth")
hole9.DrillPoint = "Angled"
hole9.DrillPointAngle = 118
hole9.Reversed = True

doc.recompute()
